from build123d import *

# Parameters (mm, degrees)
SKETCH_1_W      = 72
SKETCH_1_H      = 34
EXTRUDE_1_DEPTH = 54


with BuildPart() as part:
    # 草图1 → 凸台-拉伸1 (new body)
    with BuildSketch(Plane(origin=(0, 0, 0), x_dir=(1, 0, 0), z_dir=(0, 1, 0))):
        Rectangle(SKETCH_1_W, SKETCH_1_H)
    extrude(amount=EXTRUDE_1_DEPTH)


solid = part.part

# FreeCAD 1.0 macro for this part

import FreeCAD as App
import Part
import Sketcher
from FreeCAD import Vector


def add_polygon(sketch, points):
    """Adds a closed chain of lines whose ends are joined by coincident constraints."""
    first, n = sketch.GeometryCount, len(points)
    for a, b in zip(points, points[1:] + points[:1]):
        sketch.addGeometry(Part.LineSegment(App.Vector(*a, 0), App.Vector(*b, 0)), False)
    for i in range(n):
        sketch.addConstraint(Sketcher.Constraint("Coincident", first + i, 2, first + (i + 1) % n, 1))

doc = App.newDocument("Part")
body = doc.addObject("PartDesign::Body", "Body")

# Sketch on XZ plane
sketch1 = body.newObject("Sketcher::SketchObject", "Sketch")
sketch1.AttachmentSupport = (doc.getObject("XZ_Plane"), [""])
sketch1.MapMode = "FlatFace"
add_polygon(sketch1, [(-36, -17), (-36, 17), (36, 17), (36, -17)])  # lines 0-3
sketch1.addConstraint([
    Sketcher.Constraint("Vertical", 0),
    Sketcher.Constraint("Horizontal", 1),
    Sketcher.Constraint("Vertical", 2),
    Sketcher.Constraint("Horizontal", 3),
    Sketcher.Constraint("Symmetric", 0, 2, 2, 2, -1, 1),
    Sketcher.Constraint("DistanceX", 1, 1, 1, 2, 72.0),
    Sketcher.Constraint("DistanceY", 0, 1, 0, 2, 34.0),
])
pad1 = body.newObject("PartDesign::Pad", "Pad")
pad1.Profile = sketch1
pad1.Length = 54
pad1.Reversed = True

doc.recompute()
